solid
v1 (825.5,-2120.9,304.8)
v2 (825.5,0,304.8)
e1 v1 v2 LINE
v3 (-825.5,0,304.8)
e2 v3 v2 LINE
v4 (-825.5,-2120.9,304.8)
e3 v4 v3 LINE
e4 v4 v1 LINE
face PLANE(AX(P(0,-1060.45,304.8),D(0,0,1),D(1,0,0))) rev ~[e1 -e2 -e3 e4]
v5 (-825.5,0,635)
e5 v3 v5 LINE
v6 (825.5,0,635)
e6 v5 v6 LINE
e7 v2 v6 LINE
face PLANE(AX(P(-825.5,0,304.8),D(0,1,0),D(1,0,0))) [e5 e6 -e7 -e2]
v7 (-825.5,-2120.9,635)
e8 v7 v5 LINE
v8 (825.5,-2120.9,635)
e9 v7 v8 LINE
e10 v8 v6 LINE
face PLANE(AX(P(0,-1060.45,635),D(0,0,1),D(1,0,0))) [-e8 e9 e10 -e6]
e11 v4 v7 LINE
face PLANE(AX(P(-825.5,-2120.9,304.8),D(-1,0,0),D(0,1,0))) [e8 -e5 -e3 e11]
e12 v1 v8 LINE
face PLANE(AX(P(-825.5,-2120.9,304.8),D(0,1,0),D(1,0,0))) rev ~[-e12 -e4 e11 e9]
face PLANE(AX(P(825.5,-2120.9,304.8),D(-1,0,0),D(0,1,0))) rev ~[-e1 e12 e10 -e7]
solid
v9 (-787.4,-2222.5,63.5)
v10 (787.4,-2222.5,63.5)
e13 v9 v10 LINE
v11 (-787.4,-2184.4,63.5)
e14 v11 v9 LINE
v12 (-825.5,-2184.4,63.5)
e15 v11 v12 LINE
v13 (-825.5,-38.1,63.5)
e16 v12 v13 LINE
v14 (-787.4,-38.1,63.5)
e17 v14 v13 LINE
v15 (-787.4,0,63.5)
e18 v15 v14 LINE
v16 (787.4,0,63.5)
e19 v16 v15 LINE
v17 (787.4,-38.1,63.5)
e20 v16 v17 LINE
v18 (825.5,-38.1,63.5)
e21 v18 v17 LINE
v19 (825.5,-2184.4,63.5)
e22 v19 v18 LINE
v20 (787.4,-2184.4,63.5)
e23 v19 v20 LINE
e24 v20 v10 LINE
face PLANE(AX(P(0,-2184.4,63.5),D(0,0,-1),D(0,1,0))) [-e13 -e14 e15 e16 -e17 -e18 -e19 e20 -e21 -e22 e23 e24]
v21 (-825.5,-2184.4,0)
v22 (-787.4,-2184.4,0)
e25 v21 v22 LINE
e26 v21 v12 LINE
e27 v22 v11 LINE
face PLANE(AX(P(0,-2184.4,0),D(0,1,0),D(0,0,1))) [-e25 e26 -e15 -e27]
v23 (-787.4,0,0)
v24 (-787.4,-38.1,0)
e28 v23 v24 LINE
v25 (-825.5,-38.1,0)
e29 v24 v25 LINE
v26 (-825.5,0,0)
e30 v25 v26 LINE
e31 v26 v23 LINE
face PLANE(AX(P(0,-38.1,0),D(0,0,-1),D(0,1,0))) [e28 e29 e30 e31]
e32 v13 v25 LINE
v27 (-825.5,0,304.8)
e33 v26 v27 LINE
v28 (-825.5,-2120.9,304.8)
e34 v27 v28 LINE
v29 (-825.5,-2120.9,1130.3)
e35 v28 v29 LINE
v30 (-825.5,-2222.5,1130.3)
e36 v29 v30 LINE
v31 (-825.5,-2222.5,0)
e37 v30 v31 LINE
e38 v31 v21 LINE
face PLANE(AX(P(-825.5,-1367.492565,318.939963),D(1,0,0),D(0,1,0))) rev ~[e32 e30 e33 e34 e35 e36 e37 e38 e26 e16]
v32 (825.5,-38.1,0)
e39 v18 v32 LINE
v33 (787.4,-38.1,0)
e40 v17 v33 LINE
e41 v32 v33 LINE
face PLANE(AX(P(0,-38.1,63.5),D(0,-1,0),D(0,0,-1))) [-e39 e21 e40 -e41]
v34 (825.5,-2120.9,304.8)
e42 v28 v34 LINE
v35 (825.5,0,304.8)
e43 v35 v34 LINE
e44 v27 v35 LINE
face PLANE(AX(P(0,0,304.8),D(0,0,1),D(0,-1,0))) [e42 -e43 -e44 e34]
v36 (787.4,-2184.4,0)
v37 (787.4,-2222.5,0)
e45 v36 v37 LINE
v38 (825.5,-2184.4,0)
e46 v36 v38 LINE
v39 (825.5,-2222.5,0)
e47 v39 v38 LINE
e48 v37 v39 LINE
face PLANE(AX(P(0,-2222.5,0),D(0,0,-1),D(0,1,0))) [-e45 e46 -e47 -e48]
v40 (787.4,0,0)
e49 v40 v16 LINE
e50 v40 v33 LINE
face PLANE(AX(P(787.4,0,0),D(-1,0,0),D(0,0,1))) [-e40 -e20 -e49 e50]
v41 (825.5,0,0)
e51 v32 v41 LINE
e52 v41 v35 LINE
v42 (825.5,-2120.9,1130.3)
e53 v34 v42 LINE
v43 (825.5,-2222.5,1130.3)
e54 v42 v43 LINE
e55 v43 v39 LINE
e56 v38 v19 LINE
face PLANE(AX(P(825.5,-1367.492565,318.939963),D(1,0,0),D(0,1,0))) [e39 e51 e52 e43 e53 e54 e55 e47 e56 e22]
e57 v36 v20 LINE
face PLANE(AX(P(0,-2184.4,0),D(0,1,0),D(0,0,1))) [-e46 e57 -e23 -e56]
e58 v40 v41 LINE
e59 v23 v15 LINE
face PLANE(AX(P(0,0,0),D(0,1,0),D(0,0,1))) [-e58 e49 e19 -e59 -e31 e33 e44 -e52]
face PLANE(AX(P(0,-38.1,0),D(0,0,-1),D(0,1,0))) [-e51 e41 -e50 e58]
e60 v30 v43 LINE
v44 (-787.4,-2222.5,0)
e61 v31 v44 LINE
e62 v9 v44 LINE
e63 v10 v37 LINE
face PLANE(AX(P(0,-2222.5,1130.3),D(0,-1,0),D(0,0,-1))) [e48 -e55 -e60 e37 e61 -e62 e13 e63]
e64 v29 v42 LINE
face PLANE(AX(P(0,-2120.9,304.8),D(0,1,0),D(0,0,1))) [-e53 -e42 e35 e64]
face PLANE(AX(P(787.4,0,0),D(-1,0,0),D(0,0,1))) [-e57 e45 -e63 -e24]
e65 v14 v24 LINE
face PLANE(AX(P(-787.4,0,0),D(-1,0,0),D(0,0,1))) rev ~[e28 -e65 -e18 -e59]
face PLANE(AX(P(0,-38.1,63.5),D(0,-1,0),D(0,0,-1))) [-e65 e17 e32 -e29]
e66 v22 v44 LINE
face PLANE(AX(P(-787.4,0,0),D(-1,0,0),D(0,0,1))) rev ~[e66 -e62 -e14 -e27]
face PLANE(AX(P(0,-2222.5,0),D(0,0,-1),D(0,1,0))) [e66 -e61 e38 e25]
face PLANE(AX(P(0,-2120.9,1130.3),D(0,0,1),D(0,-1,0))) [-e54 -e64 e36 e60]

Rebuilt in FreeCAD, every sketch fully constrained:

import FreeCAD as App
import Part
import Sketcher
Q = App.Units.Quantity

doc = App.newDocument("Part")
body = doc.addObject("PartDesign::Body", "Body")

# Sketch on YZ plane
sketch1 = body.newObject("Sketcher::SketchObject", "Sketch")
sketch1.AttachmentSupport = (doc.getObject("YZ_Plane"), [""])
sketch1.MapMode = "FlatFace"
sketch1.addGeometry(Part.LineSegment(App.Vector(-38.1, 0, 0), App.Vector(0, 0, 0)), False)
sketch1.addGeometry(Part.LineSegment(App.Vector(0, 0, 0), App.Vector(0, 304.8, 0)), False)
sketch1.addGeometry(Part.LineSegment(App.Vector(0, 304.8, 0), App.Vector(-2120.9, 304.8, 0)), False)
sketch1.addGeometry(Part.LineSegment(App.Vector(-2120.9, 304.8, 0), App.Vector(-2120.9, 1130.3, 0)), False)
sketch1.addGeometry(Part.LineSegment(App.Vector(-2120.9, 1130.3, 0), App.Vector(-2222.5, 1130.3, 0)), False)
sketch1.addGeometry(Part.LineSegment(App.Vector(-2222.5, 1130.3, 0), App.Vector(-2222.5, 0, 0)), False)
sketch1.addGeometry(Part.LineSegment(App.Vector(-2222.5, 0, 0), App.Vector(-2184.4, 0, 0)), False)
sketch1.addGeometry(Part.LineSegment(App.Vector(-2184.4, 0, 0), App.Vector(-2184.4, 63.5, 0)), False)
sketch1.addGeometry(Part.LineSegment(App.Vector(-2184.4, 63.5, 0), App.Vector(-38.1, 63.5, 0)), False)
sketch1.addGeometry(Part.LineSegment(App.Vector(-38.1, 63.5, 0), App.Vector(-38.1, 0, 0)), False)
sketch1.addConstraint(Sketcher.Constraint("Coincident", 0, 2, 1, 1))
sketch1.addConstraint(Sketcher.Constraint("Coincident", 1, 2, 2, 1))
sketch1.addConstraint(Sketcher.Constraint("Coincident", 2, 2, 3, 1))
sketch1.addConstraint(Sketcher.Constraint("Coincident", 3, 2, 4, 1))
sketch1.addConstraint(Sketcher.Constraint("Coincident", 4, 2, 5, 1))
sketch1.addConstraint(Sketcher.Constraint("Coincident", 5, 2, 6, 1))
sketch1.addConstraint(Sketcher.Constraint("Coincident", 6, 2, 7, 1))
sketch1.addConstraint(Sketcher.Constraint("Coincident", 7, 2, 8, 1))
sketch1.addConstraint(Sketcher.Constraint("Coincident", 8, 2, 9, 1))
sketch1.addConstraint(Sketcher.Constraint("Coincident", 9, 2, 0, 1))
sketch1.addConstraint(Sketcher.Constraint("Horizontal", 0))
sketch1.addConstraint(Sketcher.Constraint("Vertical", 1))
sketch1.addConstraint(Sketcher.Constraint("Horizontal", 2))
sketch1.addConstraint(Sketcher.Constraint("Vertical", 3))
sketch1.addConstraint(Sketcher.Constraint("Horizontal", 4))
sketch1.addConstraint(Sketcher.Constraint("Vertical", 5))
sketch1.addConstraint(Sketcher.Constraint("Horizontal", 6))
sketch1.addConstraint(Sketcher.Constraint("Vertical", 7))
sketch1.addConstraint(Sketcher.Constraint("Horizontal", 8))
sketch1.addConstraint(Sketcher.Constraint("Vertical", 9))
sketch1.addConstraint(Sketcher.Constraint("Coincident", 0, 2, -1, 1))
sketch1.addConstraint(Sketcher.Constraint("PointOnObject", 5, 2, -1))
sketch1.addConstraint(Sketcher.Constraint("Equal", 0, 6))
sketch1.addConstraint(Sketcher.Constraint("DistanceX", 4, 2, 4, 1, Q("4 in")))
sketch1.addConstraint(Sketcher.Constraint("DistanceY", 1, 1, 1, 2, Q("12 in")))
sketch1.addConstraint(Sketcher.Constraint("DistanceX", 0, 1, 0, 2, Q("1.5 in")))
sketch1.addConstraint(Sketcher.Constraint("DistanceX", 2, 2, 2, 1, Q("83.5 in")))
sketch1.addConstraint(Sketcher.Constraint("DistanceY", 3, 1, 3, 2, Q("32.5 in")))
sketch1.addConstraint(Sketcher.Constraint("DistanceY", 7, 1, 7, 2, Q("2.5 in")))
pad1 = body.newObject("PartDesign::Pad", "Pad")
pad1.Profile = sketch1
pad1.Length = Q("65 in")
pad1.Midplane = True

# Sketch on XZ plane
sketch2 = body.newObject("Sketcher::SketchObject", "Sketch001")
sketch2.AttachmentSupport = (doc.getObject("XZ_Plane"), [""])
sketch2.MapMode = "FlatFace"
sketch2.addGeometry(Part.LineSegment(App.Vector(787.4, 63.5, 0), App.Vector(787.4, 0, 0)), False)
sketch2.addGeometry(Part.LineSegment(App.Vector(787.4, 0, 0), App.Vector(-787.4, 0, 0)), False)
sketch2.addGeometry(Part.LineSegment(App.Vector(-787.4, 0, 0), App.Vector(-787.4, 63.5, 0)), False)
sketch2.addGeometry(Part.LineSegment(App.Vector(-787.4, 63.5, 0), App.Vector(787.4, 63.5, 0)), False)
sketch2.addConstraint(Sketcher.Constraint("Coincident", 0, 2, 1, 1))
sketch2.addConstraint(Sketcher.Constraint("Coincident", 1, 2, 2, 1))
sketch2.addConstraint(Sketcher.Constraint("Coincident", 2, 2, 3, 1))
sketch2.addConstraint(Sketcher.Constraint("Coincident", 3, 2, 0, 1))
sketch2.addConstraint(Sketcher.Constraint("Vertical", 0))
sketch2.addConstraint(Sketcher.Constraint("Horizontal", 1))
sketch2.addConstraint(Sketcher.Constraint("Vertical", 2))
sketch2.addConstraint(Sketcher.Constraint("Horizontal", 3))
sketch2.addConstraint(Sketcher.Constraint("Symmetric", 0, 2, 1, 2, -1, 1))
sketch2.addConstraint(Sketcher.Constraint("DistanceX", 1, 2, 1, 1, Q("62 in")))
sketch2.addConstraint(Sketcher.Constraint("DistanceY", 0, 2, 0, 1, Q("2.5 in")))
pocket1 = body.newObject("PartDesign::Pocket", "Pocket")
pocket1.Profile = sketch2
pocket1.Type = "ThroughAll"
pocket1.Reversed = True
body2 = doc.addObject("PartDesign::Body", "Body001")

# Sketch on XY plane
sketch3 = body2.newObject("Sketcher::SketchObject", "Sketch002")
sketch3.AttachmentSupport = (doc.getObject("XY_Plane001"), [""])
sketch3.MapMode = "FlatFace"
sketch3.AttachmentOffset = App.Placement(App.Vector(0, 0, 12 * 25.4), App.Rotation())
sketch3.addGeometry(Part.LineSegment(App.Vector(-825.5, 0, 0), App.Vector(-825.5, -2120.9, 0)), False)
sketch3.addGeometry(Part.LineSegment(App.Vector(-825.5, -2120.9, 0), App.Vector(825.5, -2120.9, 0)), False)
sketch3.addGeometry(Part.LineSegment(App.Vector(825.5, -2120.9, 0), App.Vector(825.5, 0, 0)), False)
sketch3.addGeometry(Part.LineSegment(App.Vector(825.5, 0, 0), App.Vector(-825.5, 0, 0)), False)
sketch3.addConstraint(Sketcher.Constraint("Coincident", 0, 2, 1, 1))
sketch3.addConstraint(Sketcher.Constraint("Coincident", 1, 2, 2, 1))
sketch3.addConstraint(Sketcher.Constraint("Coincident", 2, 2, 3, 1))
sketch3.addConstraint(Sketcher.Constraint("Coincident", 3, 2, 0, 1))
sketch3.addConstraint(Sketcher.Constraint("Vertical", 0))
sketch3.addConstraint(Sketcher.Constraint("Horizontal", 1))
sketch3.addConstraint(Sketcher.Constraint("Vertical", 2))
sketch3.addConstraint(Sketcher.Constraint("Horizontal", 3))
sketch3.addConstraint(Sketcher.Constraint("Symmetric", 2, 2, 3, 2, -1, 1))
sketch3.addConstraint(Sketcher.Constraint("DistanceX", 1, 1, 1, 2, Q("65 in")))
sketch3.addConstraint(Sketcher.Constraint("DistanceY", 0, 2, 0, 1, Q("83.5 in")))
pad2 = body2.newObject("PartDesign::Pad", "Pad001")
pad2.Profile = sketch3
pad2.Length = Q("13 in")

doc.recompute()
